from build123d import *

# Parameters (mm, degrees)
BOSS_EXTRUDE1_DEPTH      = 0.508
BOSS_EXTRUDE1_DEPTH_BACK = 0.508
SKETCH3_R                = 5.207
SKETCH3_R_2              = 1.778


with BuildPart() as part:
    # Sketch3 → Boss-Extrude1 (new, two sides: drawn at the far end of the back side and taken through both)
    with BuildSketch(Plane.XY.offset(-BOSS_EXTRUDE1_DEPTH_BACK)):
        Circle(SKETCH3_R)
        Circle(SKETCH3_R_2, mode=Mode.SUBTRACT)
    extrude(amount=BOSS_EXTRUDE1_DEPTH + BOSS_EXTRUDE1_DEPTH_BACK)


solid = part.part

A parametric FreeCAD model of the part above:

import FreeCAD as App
import Part
import Sketcher

V = App.Vector
Q = App.Units.Quantity

doc = App.newDocument("Part")
body = doc.addObject("PartDesign::Body", "Body")

sketch1 = doc.addObject("Sketcher::SketchObject", "Sketch")
body.addObject(sketch1)
sketch1.AttachmentSupport = (doc.XY_Plane, [""])
sketch1.MapMode = "FlatFace"
sketch1.addGeometry(Part.Circle(V(0, 0, 0), V(0, 0, 1), 5.207), False)
sketch1.addGeometry(Part.Circle(V(0, 0, 0), V(0, 0, 1), 1.778), False)
sketch1.addConstraint(Sketcher.Constraint("Coincident", 0, 3, -1, 1))
sketch1.addConstraint(Sketcher.Constraint("Coincident", 1, 3, -1, 1))
sketch1.addConstraint(Sketcher.Constraint("Diameter", 0, Q("0.41 in")))
sketch1.addConstraint(Sketcher.Constraint("Diameter", 1, Q("0.14 in")))
pad1 = doc.addObject("PartDesign::Pad", "Pad")
body.addObject(pad1)
pad1.Profile = sketch1
pad1.Type = "TwoLengths"
pad1.Length = Q("0.02 in")
pad1.Length2 = Q("0.02 in")

doc.recompute()
